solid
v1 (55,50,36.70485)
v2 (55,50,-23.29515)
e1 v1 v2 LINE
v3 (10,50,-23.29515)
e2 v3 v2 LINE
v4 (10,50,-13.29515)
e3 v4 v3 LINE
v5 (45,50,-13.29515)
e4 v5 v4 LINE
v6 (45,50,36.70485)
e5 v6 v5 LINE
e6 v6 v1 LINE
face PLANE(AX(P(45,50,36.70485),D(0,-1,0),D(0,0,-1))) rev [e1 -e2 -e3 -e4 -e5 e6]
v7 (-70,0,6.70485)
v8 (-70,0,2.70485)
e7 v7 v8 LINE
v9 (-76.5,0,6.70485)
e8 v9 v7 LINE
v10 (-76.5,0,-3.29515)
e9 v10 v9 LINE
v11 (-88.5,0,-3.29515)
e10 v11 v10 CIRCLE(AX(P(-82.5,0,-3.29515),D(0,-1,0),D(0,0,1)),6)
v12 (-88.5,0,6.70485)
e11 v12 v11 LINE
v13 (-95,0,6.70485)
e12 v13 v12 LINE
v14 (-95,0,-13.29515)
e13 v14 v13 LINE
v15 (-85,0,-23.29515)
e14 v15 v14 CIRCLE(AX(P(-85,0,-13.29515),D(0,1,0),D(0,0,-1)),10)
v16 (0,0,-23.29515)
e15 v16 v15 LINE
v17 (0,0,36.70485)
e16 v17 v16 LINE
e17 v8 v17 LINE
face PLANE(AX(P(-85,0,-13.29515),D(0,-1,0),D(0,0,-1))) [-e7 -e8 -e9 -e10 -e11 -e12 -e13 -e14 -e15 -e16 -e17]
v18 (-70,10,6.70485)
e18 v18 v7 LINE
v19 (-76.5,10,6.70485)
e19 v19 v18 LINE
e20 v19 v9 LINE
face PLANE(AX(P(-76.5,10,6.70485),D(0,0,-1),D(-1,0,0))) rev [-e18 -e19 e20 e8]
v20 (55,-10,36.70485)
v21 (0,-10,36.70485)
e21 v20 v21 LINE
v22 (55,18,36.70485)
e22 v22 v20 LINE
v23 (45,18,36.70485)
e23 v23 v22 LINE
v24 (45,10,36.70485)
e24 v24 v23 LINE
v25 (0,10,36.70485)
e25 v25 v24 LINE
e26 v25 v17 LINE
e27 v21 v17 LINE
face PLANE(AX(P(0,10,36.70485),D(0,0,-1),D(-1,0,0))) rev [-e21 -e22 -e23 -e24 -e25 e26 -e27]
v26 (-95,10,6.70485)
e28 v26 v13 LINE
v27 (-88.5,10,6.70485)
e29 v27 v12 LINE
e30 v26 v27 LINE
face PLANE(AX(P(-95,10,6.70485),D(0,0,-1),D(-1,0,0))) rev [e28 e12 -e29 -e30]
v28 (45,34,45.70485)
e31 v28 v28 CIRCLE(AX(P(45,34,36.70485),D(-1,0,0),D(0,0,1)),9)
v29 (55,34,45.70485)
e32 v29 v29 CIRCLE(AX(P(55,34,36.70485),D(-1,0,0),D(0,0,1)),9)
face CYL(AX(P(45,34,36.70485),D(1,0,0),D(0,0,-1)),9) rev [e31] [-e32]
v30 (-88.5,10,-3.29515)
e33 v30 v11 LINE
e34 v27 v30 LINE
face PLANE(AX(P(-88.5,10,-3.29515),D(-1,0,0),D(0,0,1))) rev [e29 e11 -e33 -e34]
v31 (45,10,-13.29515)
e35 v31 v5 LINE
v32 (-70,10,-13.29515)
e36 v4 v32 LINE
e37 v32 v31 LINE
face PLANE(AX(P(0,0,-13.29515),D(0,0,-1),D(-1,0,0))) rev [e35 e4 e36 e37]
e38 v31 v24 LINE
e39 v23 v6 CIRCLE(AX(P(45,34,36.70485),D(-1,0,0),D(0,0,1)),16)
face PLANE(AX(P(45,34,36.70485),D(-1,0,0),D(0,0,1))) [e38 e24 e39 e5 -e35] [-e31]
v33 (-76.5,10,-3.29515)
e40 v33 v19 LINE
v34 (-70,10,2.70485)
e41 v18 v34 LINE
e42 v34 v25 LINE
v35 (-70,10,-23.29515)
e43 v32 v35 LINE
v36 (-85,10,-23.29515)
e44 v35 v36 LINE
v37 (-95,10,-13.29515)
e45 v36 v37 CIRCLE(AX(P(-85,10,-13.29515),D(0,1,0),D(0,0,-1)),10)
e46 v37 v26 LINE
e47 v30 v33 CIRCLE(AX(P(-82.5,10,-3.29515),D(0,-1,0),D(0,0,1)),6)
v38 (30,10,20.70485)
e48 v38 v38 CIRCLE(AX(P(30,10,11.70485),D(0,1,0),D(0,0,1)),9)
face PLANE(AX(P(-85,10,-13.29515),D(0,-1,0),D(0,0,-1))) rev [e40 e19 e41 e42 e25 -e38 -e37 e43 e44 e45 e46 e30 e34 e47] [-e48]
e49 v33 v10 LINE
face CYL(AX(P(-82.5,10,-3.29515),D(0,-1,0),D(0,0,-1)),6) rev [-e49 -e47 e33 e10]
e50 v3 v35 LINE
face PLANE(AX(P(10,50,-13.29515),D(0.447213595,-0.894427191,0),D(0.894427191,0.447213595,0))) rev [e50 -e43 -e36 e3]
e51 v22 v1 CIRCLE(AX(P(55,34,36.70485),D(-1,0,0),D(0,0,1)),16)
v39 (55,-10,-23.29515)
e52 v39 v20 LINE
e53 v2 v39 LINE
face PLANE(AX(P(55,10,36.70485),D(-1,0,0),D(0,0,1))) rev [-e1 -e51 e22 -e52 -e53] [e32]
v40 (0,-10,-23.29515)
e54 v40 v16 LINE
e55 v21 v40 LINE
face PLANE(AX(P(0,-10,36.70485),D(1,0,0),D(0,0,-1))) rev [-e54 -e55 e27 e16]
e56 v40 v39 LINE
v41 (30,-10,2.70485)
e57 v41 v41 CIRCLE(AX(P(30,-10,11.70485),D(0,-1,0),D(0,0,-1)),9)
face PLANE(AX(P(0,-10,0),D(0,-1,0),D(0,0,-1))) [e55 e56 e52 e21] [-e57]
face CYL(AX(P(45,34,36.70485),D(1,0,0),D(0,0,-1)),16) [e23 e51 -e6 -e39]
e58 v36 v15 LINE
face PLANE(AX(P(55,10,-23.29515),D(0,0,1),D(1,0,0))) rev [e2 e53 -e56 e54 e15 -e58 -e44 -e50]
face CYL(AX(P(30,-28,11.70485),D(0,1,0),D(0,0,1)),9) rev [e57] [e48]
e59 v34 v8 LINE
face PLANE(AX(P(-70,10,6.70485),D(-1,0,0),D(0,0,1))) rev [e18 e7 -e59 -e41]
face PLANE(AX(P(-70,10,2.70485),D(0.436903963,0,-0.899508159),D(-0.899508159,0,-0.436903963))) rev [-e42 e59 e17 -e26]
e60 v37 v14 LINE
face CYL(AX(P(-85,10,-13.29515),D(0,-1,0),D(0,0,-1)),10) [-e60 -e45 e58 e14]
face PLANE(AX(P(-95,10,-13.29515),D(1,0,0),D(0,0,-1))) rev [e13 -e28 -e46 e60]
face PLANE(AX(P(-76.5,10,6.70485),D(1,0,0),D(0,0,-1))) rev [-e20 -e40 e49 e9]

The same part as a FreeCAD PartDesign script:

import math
import FreeCAD as App
import Part
import Sketcher
Q = App.Units.Quantity

doc = App.newDocument("Part")
body = doc.addObject("PartDesign::Body", "Body")

sketch1 = doc.addObject("Sketcher::SketchObject", "Sketch")
body.addObject(sketch1)
sketch1.AttachmentSupport = (doc.XZ_Plane, [""])
sketch1.MapMode = "FlatFace"
sketch1.addGeometry(Part.LineSegment(App.Vector(0, 36.70485, 0), App.Vector(55, 36.70485, 0)), False)
sketch1.addGeometry(Part.LineSegment(App.Vector(55, 36.70485, 0), App.Vector(55, -23.29515, 0)), False)
sketch1.addGeometry(Part.LineSegment(App.Vector(55, -23.29515, 0), App.Vector(-85, -23.29515, 0)), False)
sketch1.addGeometry(Part.ArcOfCircle(Part.Circle(App.Vector(-85, -13.29515, 0), App.Vector(0, 0, 1), 10), math.radians(180), math.radians(270)), False)
sketch1.addGeometry(Part.LineSegment(App.Vector(-95, -13.29515, 0), App.Vector(-95, 6.70485, 0)), False)
sketch1.addGeometry(Part.LineSegment(App.Vector(-95, 6.70485, 0), App.Vector(-88.5, 6.70485, 0)), False)
sketch1.addGeometry(Part.LineSegment(App.Vector(-88.5, 6.70485, 0), App.Vector(-88.5, -3.29515, 0)), False)
sketch1.addGeometry(Part.ArcOfCircle(Part.Circle(App.Vector(-82.5, -3.29515, 0), App.Vector(0, 0, 1), 6), math.radians(180), math.radians(360)), False)
sketch1.addGeometry(Part.LineSegment(App.Vector(-76.5, -3.29515, 0), App.Vector(-76.5, 6.70485, 0)), False)
sketch1.addGeometry(Part.LineSegment(App.Vector(-76.5, 6.70485, 0), App.Vector(-70, 6.70485, 0)), False)
sketch1.addGeometry(Part.LineSegment(App.Vector(-70, 6.70485, 0), App.Vector(-70, 2.70485, 0)), False)
sketch1.addGeometry(Part.LineSegment(App.Vector(-70, 2.70485, 0), App.Vector(0, 36.70485, 0)), False)
sketch1.addConstraint(Sketcher.Constraint("Coincident", 0, 2, 1, 1))
sketch1.addConstraint(Sketcher.Constraint("Coincident", 1, 2, 2, 1))
sketch1.addConstraint(Sketcher.Constraint("Tangent", 2, 2, 3, 2))
sketch1.addConstraint(Sketcher.Constraint("Tangent", 3, 1, 4, 1))
sketch1.addConstraint(Sketcher.Constraint("Coincident", 4, 2, 5, 1))
sketch1.addConstraint(Sketcher.Constraint("Coincident", 5, 2, 6, 1))
sketch1.addConstraint(Sketcher.Constraint("Tangent", 6, 2, 7, 1))
sketch1.addConstraint(Sketcher.Constraint("Tangent", 7, 2, 8, 1))
sketch1.addConstraint(Sketcher.Constraint("Coincident", 8, 2, 9, 1))
sketch1.addConstraint(Sketcher.Constraint("Coincident", 9, 2, 10, 1))
sketch1.addConstraint(Sketcher.Constraint("Coincident", 10, 2, 11, 1))
sketch1.addConstraint(Sketcher.Constraint("Coincident", 11, 2, 0, 1))
sketch1.addConstraint(Sketcher.Constraint("Horizontal", 0))
sketch1.addConstraint(Sketcher.Constraint("Vertical", 1))
sketch1.addConstraint(Sketcher.Constraint("Horizontal", 2))
sketch1.addConstraint(Sketcher.Constraint("Vertical", 4))
sketch1.addConstraint(Sketcher.Constraint("Horizontal", 5))
sketch1.addConstraint(Sketcher.Constraint("Vertical", 6))
sketch1.addConstraint(Sketcher.Constraint("Vertical", 8))
sketch1.addConstraint(Sketcher.Constraint("Horizontal", 9))
sketch1.addConstraint(Sketcher.Constraint("Vertical", 10))
sketch1.addConstraint(Sketcher.Constraint("PointOnObject", 11, 2, -2))
sketch1.addConstraint(Sketcher.Constraint("Horizontal", 5, 2, 8, 2))
sketch1.addConstraint(Sketcher.Constraint("Equal", 5, 9))
sketch1.addConstraint(Sketcher.Constraint("Radius", 3, Q("10 mm")))
sketch1.addConstraint(Sketcher.Constraint("Radius", 7, Q("6 mm")))
sketch1.addConstraint(Sketcher.Constraint("DistanceX", 0, 1, 0, 2, Q("55 mm")))
sketch1.addConstraint(Sketcher.Constraint("DistanceX", 2, 2, 2, 1, Q("140 mm")))
sketch1.addConstraint(Sketcher.Constraint("DistanceY", 1, 2, 1, 1, Q("60 mm")))
sketch1.addConstraint(Sketcher.Constraint("DistanceY", 4, 1, 4, 2, Q("20 mm")))
sketch1.addConstraint(Sketcher.Constraint("DistanceY", 6, 2, 6, 1, Q("10 mm")))
sketch1.addConstraint(Sketcher.Constraint("DistanceY", 10, 2, 10, 1, Q("4 mm")))
sketch1.addConstraint(Sketcher.Constraint("DistanceX", 5, 1, 5, 2, Q("6.5 mm")))
sketch1.addConstraint(Sketcher.Constraint("DistanceY", 3, 3, -1, 1, Q("13.29515 mm")))
pad1 = doc.addObject("PartDesign::Pad", "Pad")
body.addObject(pad1)
pad1.Profile = sketch1
pad1.Length = 10
pad1.Reversed = True

sketch2 = doc.addObject("Sketcher::SketchObject", "Sketch001")
body.addObject(sketch2)
sketch2.AttachmentSupport = (doc.YZ_Plane, [""])
sketch2.MapMode = "FlatFace"
sketch2.AttachmentOffset = App.Placement(App.Vector(0, 0, 55), App.Rotation())
sketch2.addGeometry(Part.LineSegment(App.Vector(10, -23.29515, 0), App.Vector(10, 36.70485, 0)), False)
sketch2.addGeometry(Part.LineSegment(App.Vector(10, 36.70485, 0), App.Vector(18, 36.70485, 0)), False)
sketch2.addGeometry(Part.ArcOfCircle(Part.Circle(App.Vector(34, 36.70485, 0), App.Vector(0, 0, 1), 16), math.radians(0), math.radians(180)), False)
sketch2.addGeometry(Part.LineSegment(App.Vector(50, 36.70485, 0), App.Vector(50, -23.29515, 0)), False)
sketch2.addGeometry(Part.LineSegment(App.Vector(50, -23.29515, 0), App.Vector(10, -23.29515, 0)), False)
sketch2.addGeometry(Part.Circle(App.Vector(34, 36.70485, 0), App.Vector(0, 0, 1), 9), False)
sketch2.addConstraint(Sketcher.Constraint("Coincident", 0, 2, 1, 1))
sketch2.addConstraint(Sketcher.Constraint("Coincident", 1, 2, 2, 2))
sketch2.addConstraint(Sketcher.Constraint("Tangent", 2, 1, 3, 1))
sketch2.addConstraint(Sketcher.Constraint("Coincident", 3, 2, 4, 1))
sketch2.addConstraint(Sketcher.Constraint("Coincident", 4, 2, 0, 1))
sketch2.addConstraint(Sketcher.Constraint("Vertical", 0))
sketch2.addConstraint(Sketcher.Constraint("Horizontal", 1))
sketch2.addConstraint(Sketcher.Constraint("Vertical", 3))
sketch2.addConstraint(Sketcher.Constraint("Horizontal", 4))
sketch2.addConstraint(Sketcher.Constraint("Coincident", 5, 3, 2, 3))
sketch2.addConstraint(Sketcher.Constraint("Horizontal", 5, 3, 0, 2))
sketch2.addConstraint(Sketcher.Constraint("Diameter", 5, Q("18 mm")))
sketch2.addConstraint(Sketcher.Constraint("Radius", 2, Q("16 mm")))
sketch2.addConstraint(Sketcher.Constraint("DistanceX", 1, 1, 1, 2, Q("8 mm")))
sketch2.addConstraint(Sketcher.Constraint("DistanceY", 0, 1, 0, 2, Q("60 mm")))
sketch2.addConstraint(Sketcher.Constraint("DistanceX", -1, 1, 2, 3, Q("34 mm")))
sketch2.addConstraint(Sketcher.Constraint("DistanceY", -1, 1, 2, 3, Q("36.70485 mm")))
pad2 = doc.addObject("PartDesign::Pad", "Pad001")
body.addObject(pad2)
pad2.Profile = sketch2
pad2.Length = 10
pad2.Reversed = True

sketch3 = doc.addObject("Sketcher::SketchObject", "Sketch002")
body.addObject(sketch3)
sketch3.AttachmentSupport = (doc.XY_Plane, [""])
sketch3.MapMode = "FlatFace"
sketch3.AttachmentOffset = App.Placement(App.Vector(0, 0, -23.29515), App.Rotation())
sketch3.addGeometry(Part.LineSegment(App.Vector(-70, 10, 0), App.Vector(45, 10, 0)), False)
sketch3.addGeometry(Part.LineSegment(App.Vector(45, 10, 0), App.Vector(45, 50, 0)), False)
sketch3.addGeometry(Part.LineSegment(App.Vector(45, 50, 0), App.Vector(10, 50, 0)), False)
sketch3.addGeometry(Part.LineSegment(App.Vector(10, 50, 0), App.Vector(-70, 10, 0)), False)
sketch3.addConstraint(Sketcher.Constraint("Coincident", 0, 2, 1, 1))
sketch3.addConstraint(Sketcher.Constraint("Coincident", 1, 2, 2, 1))
sketch3.addConstraint(Sketcher.Constraint("Coincident", 2, 2, 3, 1))
sketch3.addConstraint(Sketcher.Constraint("Coincident", 3, 2, 0, 1))
sketch3.addConstraint(Sketcher.Constraint("Horizontal", 0))
sketch3.addConstraint(Sketcher.Constraint("Vertical", 1))
sketch3.addConstraint(Sketcher.Constraint("Horizontal", 2))
sketch3.addConstraint(Sketcher.Constraint("DistanceX", 0, 1, 0, 2, Q("115 mm")))
sketch3.addConstraint(Sketcher.Constraint("DistanceX", 2, 2, 2, 1, Q("35 mm")))
sketch3.addConstraint(Sketcher.Constraint("DistanceY", 1, 1, 1, 2, Q("40 mm")))
sketch3.addConstraint(Sketcher.Constraint("DistanceX", -1, 1, 0, 2, Q("45 mm")))
sketch3.addConstraint(Sketcher.Constraint("DistanceY", -1, 1, 0, 2, Q("10 mm")))
pad3 = doc.addObject("PartDesign::Pad", "Pad002")
body.addObject(pad3)
pad3.Profile = sketch3
pad3.Length = 10

sketch4 = doc.addObject("Sketcher::SketchObject", "Sketch003")
body.addObject(sketch4)
sketch4.AttachmentSupport = (doc.XZ_Plane, [""])
sketch4.MapMode = "FlatFace"
sketch4.addGeometry(Part.LineSegment(App.Vector(55, -23.29515, 0), App.Vector(55, 36.70485, 0)), False)
sketch4.addGeometry(Part.LineSegment(App.Vector(55, 36.70485, 0), App.Vector(0, 36.70485, 0)), False)
sketch4.addGeometry(Part.LineSegment(App.Vector(0, 36.70485, 0), App.Vector(0, -23.29515, 0)), False)
sketch4.addGeometry(Part.LineSegment(App.Vector(0, -23.29515, 0), App.Vector(55, -23.29515, 0)), False)
sketch4.addConstraint(Sketcher.Constraint("Coincident", 0, 2, 1, 1))
sketch4.addConstraint(Sketcher.Constraint("Coincident", 1, 2, 2, 1))
sketch4.addConstraint(Sketcher.Constraint("Coincident", 2, 2, 3, 1))
sketch4.addConstraint(Sketcher.Constraint("Coincident", 3, 2, 0, 1))
sketch4.addConstraint(Sketcher.Constraint("Vertical", 0))
sketch4.addConstraint(Sketcher.Constraint("Horizontal", 1))
sketch4.addConstraint(Sketcher.Constraint("Vertical", 2))
sketch4.addConstraint(Sketcher.Constraint("Horizontal", 3))
sketch4.addConstraint(Sketcher.Constraint("PointOnObject", 1, 2, -2))
sketch4.addConstraint(Sketcher.Constraint("DistanceX", 1, 2, 1, 1, Q("55 mm")))
sketch4.addConstraint(Sketcher.Constraint("DistanceY", 0, 1, 0, 2, Q("60 mm")))
sketch4.addConstraint(Sketcher.Constraint("DistanceY", -1, 1, 0, 2, Q("36.70485 mm")))
pad4 = doc.addObject("PartDesign::Pad", "Pad003")
body.addObject(pad4)
pad4.Profile = sketch4
pad4.Length = 10

sketch5 = doc.addObject("Sketcher::SketchObject", "Sketch004")
body.addObject(sketch5)
sketch5.AttachmentSupport = (doc.XZ_Plane, [""])
sketch5.MapMode = "FlatFace"
sketch5.AttachmentOffset = App.Placement(App.Vector(0, 0, -10), App.Rotation())
sketch5.addGeometry(Part.Circle(App.Vector(30, 11.70485, 0), App.Vector(0, 0, 1), 9), False)
sketch5.addConstraint(Sketcher.Constraint("Diameter", 0, Q("18 mm")))
sketch5.addConstraint(Sketcher.Constraint("DistanceX", -1, 1, 0, 3, Q("30 mm")))
sketch5.addConstraint(Sketcher.Constraint("DistanceY", -1, 1, 0, 3, Q("11.70485 mm")))
pocket1 = doc.addObject("PartDesign::Pocket", "Pocket")
body.addObject(pocket1)
pocket1.Profile = sketch5
pocket1.Length = 38
pocket1.Reversed = True

doc.recompute()
